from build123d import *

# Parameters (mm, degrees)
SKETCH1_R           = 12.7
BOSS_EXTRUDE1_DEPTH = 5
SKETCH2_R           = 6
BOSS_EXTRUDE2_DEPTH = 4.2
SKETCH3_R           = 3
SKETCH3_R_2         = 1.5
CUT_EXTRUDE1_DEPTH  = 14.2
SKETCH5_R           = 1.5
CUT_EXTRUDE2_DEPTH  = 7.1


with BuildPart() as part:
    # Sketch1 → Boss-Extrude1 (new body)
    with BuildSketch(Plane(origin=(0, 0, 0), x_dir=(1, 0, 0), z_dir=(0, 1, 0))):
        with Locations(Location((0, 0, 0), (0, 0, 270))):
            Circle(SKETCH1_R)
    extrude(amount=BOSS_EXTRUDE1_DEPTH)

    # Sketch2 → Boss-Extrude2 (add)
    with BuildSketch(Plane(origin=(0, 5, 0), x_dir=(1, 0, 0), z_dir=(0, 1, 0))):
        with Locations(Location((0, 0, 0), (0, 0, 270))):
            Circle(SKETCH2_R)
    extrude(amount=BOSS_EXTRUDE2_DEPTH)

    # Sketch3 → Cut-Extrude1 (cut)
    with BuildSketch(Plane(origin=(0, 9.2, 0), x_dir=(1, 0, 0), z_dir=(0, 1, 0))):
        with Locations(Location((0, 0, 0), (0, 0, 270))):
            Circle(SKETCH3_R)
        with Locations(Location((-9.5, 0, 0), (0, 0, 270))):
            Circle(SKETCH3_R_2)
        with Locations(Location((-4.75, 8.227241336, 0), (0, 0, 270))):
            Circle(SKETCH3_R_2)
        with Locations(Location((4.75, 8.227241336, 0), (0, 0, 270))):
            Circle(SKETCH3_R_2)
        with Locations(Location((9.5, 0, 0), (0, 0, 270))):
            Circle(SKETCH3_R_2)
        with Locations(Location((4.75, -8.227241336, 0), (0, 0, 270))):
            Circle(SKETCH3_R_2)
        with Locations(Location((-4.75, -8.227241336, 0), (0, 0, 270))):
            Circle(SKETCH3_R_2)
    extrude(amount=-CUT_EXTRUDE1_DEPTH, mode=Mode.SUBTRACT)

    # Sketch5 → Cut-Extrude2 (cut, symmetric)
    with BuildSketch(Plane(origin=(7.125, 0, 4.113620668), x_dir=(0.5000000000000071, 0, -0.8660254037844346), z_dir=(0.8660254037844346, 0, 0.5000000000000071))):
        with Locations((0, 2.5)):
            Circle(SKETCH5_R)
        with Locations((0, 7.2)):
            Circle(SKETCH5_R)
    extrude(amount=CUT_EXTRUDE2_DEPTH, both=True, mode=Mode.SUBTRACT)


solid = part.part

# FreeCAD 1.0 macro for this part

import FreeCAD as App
import Part
import Sketcher
Q = App.Units.Quantity

doc = App.newDocument("Part")
body = doc.addObject("PartDesign::Body", "Body")

# Sketch on XZ plane
sketch1 = body.newObject("Sketcher::SketchObject", "Sketch")
sketch1.AttachmentSupport = (doc.getObject("XZ_Plane"), [""])
sketch1.MapMode = "FlatFace"
sketch1.addGeometry(Part.Circle(App.Vector(0, 0, 0), App.Vector(0, 0, 1), 12.7), False)
sketch1.addConstraint([
    Sketcher.Constraint("Coincident", 0, 3, -1, 1),
    Sketcher.Constraint("Diameter", 0, Q("25.4 mm")),
])
pad1 = body.newObject("PartDesign::Pad", "Pad")
pad1.Profile = sketch1
pad1.Length = 5
pad1.Reversed = True

# Sketch on XZ plane
sketch2 = body.newObject("Sketcher::SketchObject", "Sketch001")
sketch2.AttachmentSupport = (doc.getObject("XZ_Plane"), [""])
sketch2.MapMode = "FlatFace"
sketch2.AttachmentOffset = App.Placement(App.Vector(0, 0, -5), App.Rotation())
sketch2.addGeometry(Part.Circle(App.Vector(0, 0, 0), App.Vector(0, 0, 1), 6), False)
sketch2.addConstraint([
    Sketcher.Constraint("Coincident", 0, 3, -1, 1),
    Sketcher.Constraint("Diameter", 0, Q("12 mm")),
])
pad2 = body.newObject("PartDesign::Pad", "Pad001")
pad2.Profile = sketch2
pad2.Length = 4.2
pad2.Reversed = True

# Sketch on XZ plane
sketch3 = body.newObject("Sketcher::SketchObject", "Sketch002")
sketch3.AttachmentSupport = (doc.getObject("XZ_Plane"), [""])
sketch3.MapMode = "FlatFace"
sketch3.AttachmentOffset = App.Placement(App.Vector(0, 0, -9.2), App.Rotation())
sketch3.addGeometry([
    Part.Circle(App.Vector(0, 0, 0), App.Vector(0, 0, 1), 3),  # 0
    Part.Circle(App.Vector(-9.5, 0, 0), App.Vector(0, 0, 1), 1.5),  # 1
    Part.Circle(App.Vector(-4.75, -8.227241, 0), App.Vector(0, 0, 1), 1.5),  # 2
    Part.Circle(App.Vector(4.75, -8.227241, 0), App.Vector(0, 0, 1), 1.5),  # 3
    Part.Circle(App.Vector(9.5, 0, 0), App.Vector(0, 0, 1), 1.5),  # 4
    Part.Circle(App.Vector(4.75, 8.227241, 0), App.Vector(0, 0, 1), 1.5),  # 5
    Part.Circle(App.Vector(-4.75, 8.227241, 0), App.Vector(0, 0, 1), 1.5),  # 6
], False)
sketch3.addConstraint([
    Sketcher.Constraint("Coincident", 0, 3, -1, 1),
    Sketcher.Constraint("Equal", 1, 2),
    Sketcher.Constraint("Equal", 2, 3),
    Sketcher.Constraint("Equal", 3, 4),
    Sketcher.Constraint("Equal", 4, 5),
    Sketcher.Constraint("Equal", 5, 6),
    Sketcher.Constraint("Symmetric", 1, 3, 4, 3, -1, 1),
    Sketcher.Constraint("Symmetric", 2, 3, 5, 3, -1, 1),
    Sketcher.Constraint("Symmetric", 3, 3, 6, 3, -1, 1),
    Sketcher.Constraint("Symmetric", 2, 3, 3, 3, -2),
    Sketcher.Constraint("PointOnObject", 1, 3, -1),
    Sketcher.Constraint("Diameter", 0, Q("6 mm")),
    Sketcher.Constraint("Diameter", 1, Q("3 mm")),
    Sketcher.Constraint("DistanceX", 1, 3, 4, 3, Q("19 mm")),
    Sketcher.Constraint("DistanceX", 2, 3, 3, 3, Q("9.5 mm")),
    Sketcher.Constraint("DistanceY", 2, 3, -1, 1, Q("8.227241 mm")),
])
pocket1 = body.newObject("PartDesign::Pocket", "Pocket")
pocket1.Profile = sketch3
pocket1.Length = 14.2
pocket1.Reversed = True

# Sketch on an angled plane
sketch4 = body.newObject("Sketcher::SketchObject", "Sketch003")
sketch4.Placement = App.Placement(App.Vector(7.125, 0, 4.113621), App.Rotation(App.Vector(0.5, 0, -0.866025404), App.Vector(0, 1, 0), App.Vector(0.866025404, 0, 0.5), "ZXY"))
sketch4.addGeometry([
    Part.Circle(App.Vector(0, 2.5, 0), App.Vector(0, 0, 1), 1.5),
    Part.Circle(App.Vector(0, 7.2, 0), App.Vector(0, 0, 1), 1.5),
], False)
sketch4.addConstraint([
    Sketcher.Constraint("Equal", 0, 1),
    Sketcher.Constraint("PointOnObject", 0, 3, -2),
    Sketcher.Constraint("PointOnObject", 1, 3, -2),
    Sketcher.Constraint("Diameter", 0, Q("3 mm")),
    Sketcher.Constraint("DistanceY", -1, 1, 0, 3, Q("2.5 mm")),
    Sketcher.Constraint("DistanceY", -1, 1, 1, 3, Q("7.2 mm")),
])
pocket2 = body.newObject("PartDesign::Pocket", "Pocket001")
pocket2.Profile = sketch4
pocket2.Length = 14.2
pocket2.Midplane = True

doc.recompute()
